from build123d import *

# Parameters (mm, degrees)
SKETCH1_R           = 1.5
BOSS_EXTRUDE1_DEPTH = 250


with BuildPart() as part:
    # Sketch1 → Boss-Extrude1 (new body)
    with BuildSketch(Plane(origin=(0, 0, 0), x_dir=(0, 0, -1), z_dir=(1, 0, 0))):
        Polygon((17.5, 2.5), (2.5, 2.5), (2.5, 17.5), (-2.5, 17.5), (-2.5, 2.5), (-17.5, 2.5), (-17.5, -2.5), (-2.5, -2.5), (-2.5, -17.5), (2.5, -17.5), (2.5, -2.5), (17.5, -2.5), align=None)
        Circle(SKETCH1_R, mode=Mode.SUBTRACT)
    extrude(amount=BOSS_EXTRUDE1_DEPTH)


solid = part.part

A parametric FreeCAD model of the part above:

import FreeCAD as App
import Part
import Sketcher

doc = App.newDocument("Part")
params = doc.addObject("Spreadsheet::Sheet", "Params")
for row, (alias, value) in enumerate([
    ("sketch1_diameter", "3 mm"),
    ("sketch1_width", "15 mm"),
    ("sketch1_width2", "5 mm"),
    ("pad1_length", "250 mm"),
], start=1):
    params.set(f"A{row}", alias)
    params.set(f"B{row}", "=" + value)
    params.setAlias(f"B{row}", alias)

body = doc.addObject("PartDesign::Body", "Body")

sketch1 = body.newObject("Sketcher::SketchObject", "Sketch")
sketch1.AttachmentSupport = (doc.getObject("YZ_Plane"), [""])
sketch1.MapMode = "FlatFace"
sketch1.addGeometry([
    Part.LineSegment(App.Vector(2.5, -17.5, 0), App.Vector(2.5, -2.5, 0)),
    Part.LineSegment(App.Vector(2.5, -2.5, 0), App.Vector(17.5, -2.5, 0)),
    Part.LineSegment(App.Vector(17.5, -2.5, 0), App.Vector(17.5, 2.5, 0)),
    Part.LineSegment(App.Vector(17.5, 2.5, 0), App.Vector(2.5, 2.5, 0)),
    Part.LineSegment(App.Vector(2.5, 2.5, 0), App.Vector(2.5, 17.5, 0)),
    Part.LineSegment(App.Vector(2.5, 17.5, 0), App.Vector(-2.5, 17.5, 0)),
    Part.LineSegment(App.Vector(-2.5, 17.5, 0), App.Vector(-2.5, 2.5, 0)),
    Part.LineSegment(App.Vector(-2.5, 2.5, 0), App.Vector(-17.5, 2.5, 0)),
    Part.LineSegment(App.Vector(-17.5, 2.5, 0), App.Vector(-17.5, -2.5, 0)),
    Part.LineSegment(App.Vector(-17.5, -2.5, 0), App.Vector(-2.5, -2.5, 0)),
    Part.LineSegment(App.Vector(-2.5, -2.5, 0), App.Vector(-2.5, -17.5, 0)),
    Part.LineSegment(App.Vector(-2.5, -17.5, 0), App.Vector(2.5, -17.5, 0)),
    Part.Circle(App.Vector(0, 0, 0), App.Vector(0, 0, 1), 1.5),
], False)
sketch1.addConstraint([
    Sketcher.Constraint("Coincident", 0, 2, 1, 1),
    Sketcher.Constraint("Coincident", 1, 2, 2, 1),
    Sketcher.Constraint("Coincident", 2, 2, 3, 1),
    Sketcher.Constraint("Coincident", 3, 2, 4, 1),
    Sketcher.Constraint("Coincident", 4, 2, 5, 1),
    Sketcher.Constraint("Coincident", 5, 2, 6, 1),
    Sketcher.Constraint("Coincident", 6, 2, 7, 1),
    Sketcher.Constraint("Coincident", 7, 2, 8, 1),
    Sketcher.Constraint("Coincident", 8, 2, 9, 1),
    Sketcher.Constraint("Coincident", 9, 2, 10, 1),
    Sketcher.Constraint("Coincident", 10, 2, 11, 1),
    Sketcher.Constraint("Coincident", 11, 2, 0, 1),
    Sketcher.Constraint("Vertical", 0),
    Sketcher.Constraint("Horizontal", 1),
    Sketcher.Constraint("Vertical", 2),
    Sketcher.Constraint("Horizontal", 3),
    Sketcher.Constraint("Vertical", 4),
    Sketcher.Constraint("Horizontal", 5),
    Sketcher.Constraint("Vertical", 6),
    Sketcher.Constraint("Horizontal", 7),
    Sketcher.Constraint("Vertical", 8),
    Sketcher.Constraint("Horizontal", 9),
    Sketcher.Constraint("Vertical", 10),
    Sketcher.Constraint("Horizontal", 11),
    Sketcher.Constraint("Coincident", 12, 3, -1, 1),
    Sketcher.Constraint("Symmetric", 0, 2, 6, 2, -1, 1),
    Sketcher.Constraint("Symmetric", 2, 2, 8, 2, -1, 1),
    Sketcher.Constraint("Symmetric", 4, 2, 10, 2, -1, 1),
    Sketcher.Constraint("Symmetric", 3, 2, 6, 2, -2),
    Sketcher.Constraint("Equal", 9, 0),
    Sketcher.Constraint("Equal", 11, 2),
    Sketcher.Constraint("Diameter", 12, 3.0),
    Sketcher.Constraint("DistanceX", 1, 1, 1, 2, 15.0),
    Sketcher.Constraint("DistanceX", 5, 2, 5, 1, 5.0),
])
sketch1.setExpression("Constraints[31]", "Params.sketch1_diameter")
sketch1.setExpression("Constraints[32]", "Params.sketch1_width")
sketch1.setExpression("Constraints[33]", "Params.sketch1_width2")
pad1 = body.newObject("PartDesign::Pad", "Pad")
pad1.Profile = sketch1
pad1.setExpression("Length", "Params.pad1_length")

doc.recompute()
